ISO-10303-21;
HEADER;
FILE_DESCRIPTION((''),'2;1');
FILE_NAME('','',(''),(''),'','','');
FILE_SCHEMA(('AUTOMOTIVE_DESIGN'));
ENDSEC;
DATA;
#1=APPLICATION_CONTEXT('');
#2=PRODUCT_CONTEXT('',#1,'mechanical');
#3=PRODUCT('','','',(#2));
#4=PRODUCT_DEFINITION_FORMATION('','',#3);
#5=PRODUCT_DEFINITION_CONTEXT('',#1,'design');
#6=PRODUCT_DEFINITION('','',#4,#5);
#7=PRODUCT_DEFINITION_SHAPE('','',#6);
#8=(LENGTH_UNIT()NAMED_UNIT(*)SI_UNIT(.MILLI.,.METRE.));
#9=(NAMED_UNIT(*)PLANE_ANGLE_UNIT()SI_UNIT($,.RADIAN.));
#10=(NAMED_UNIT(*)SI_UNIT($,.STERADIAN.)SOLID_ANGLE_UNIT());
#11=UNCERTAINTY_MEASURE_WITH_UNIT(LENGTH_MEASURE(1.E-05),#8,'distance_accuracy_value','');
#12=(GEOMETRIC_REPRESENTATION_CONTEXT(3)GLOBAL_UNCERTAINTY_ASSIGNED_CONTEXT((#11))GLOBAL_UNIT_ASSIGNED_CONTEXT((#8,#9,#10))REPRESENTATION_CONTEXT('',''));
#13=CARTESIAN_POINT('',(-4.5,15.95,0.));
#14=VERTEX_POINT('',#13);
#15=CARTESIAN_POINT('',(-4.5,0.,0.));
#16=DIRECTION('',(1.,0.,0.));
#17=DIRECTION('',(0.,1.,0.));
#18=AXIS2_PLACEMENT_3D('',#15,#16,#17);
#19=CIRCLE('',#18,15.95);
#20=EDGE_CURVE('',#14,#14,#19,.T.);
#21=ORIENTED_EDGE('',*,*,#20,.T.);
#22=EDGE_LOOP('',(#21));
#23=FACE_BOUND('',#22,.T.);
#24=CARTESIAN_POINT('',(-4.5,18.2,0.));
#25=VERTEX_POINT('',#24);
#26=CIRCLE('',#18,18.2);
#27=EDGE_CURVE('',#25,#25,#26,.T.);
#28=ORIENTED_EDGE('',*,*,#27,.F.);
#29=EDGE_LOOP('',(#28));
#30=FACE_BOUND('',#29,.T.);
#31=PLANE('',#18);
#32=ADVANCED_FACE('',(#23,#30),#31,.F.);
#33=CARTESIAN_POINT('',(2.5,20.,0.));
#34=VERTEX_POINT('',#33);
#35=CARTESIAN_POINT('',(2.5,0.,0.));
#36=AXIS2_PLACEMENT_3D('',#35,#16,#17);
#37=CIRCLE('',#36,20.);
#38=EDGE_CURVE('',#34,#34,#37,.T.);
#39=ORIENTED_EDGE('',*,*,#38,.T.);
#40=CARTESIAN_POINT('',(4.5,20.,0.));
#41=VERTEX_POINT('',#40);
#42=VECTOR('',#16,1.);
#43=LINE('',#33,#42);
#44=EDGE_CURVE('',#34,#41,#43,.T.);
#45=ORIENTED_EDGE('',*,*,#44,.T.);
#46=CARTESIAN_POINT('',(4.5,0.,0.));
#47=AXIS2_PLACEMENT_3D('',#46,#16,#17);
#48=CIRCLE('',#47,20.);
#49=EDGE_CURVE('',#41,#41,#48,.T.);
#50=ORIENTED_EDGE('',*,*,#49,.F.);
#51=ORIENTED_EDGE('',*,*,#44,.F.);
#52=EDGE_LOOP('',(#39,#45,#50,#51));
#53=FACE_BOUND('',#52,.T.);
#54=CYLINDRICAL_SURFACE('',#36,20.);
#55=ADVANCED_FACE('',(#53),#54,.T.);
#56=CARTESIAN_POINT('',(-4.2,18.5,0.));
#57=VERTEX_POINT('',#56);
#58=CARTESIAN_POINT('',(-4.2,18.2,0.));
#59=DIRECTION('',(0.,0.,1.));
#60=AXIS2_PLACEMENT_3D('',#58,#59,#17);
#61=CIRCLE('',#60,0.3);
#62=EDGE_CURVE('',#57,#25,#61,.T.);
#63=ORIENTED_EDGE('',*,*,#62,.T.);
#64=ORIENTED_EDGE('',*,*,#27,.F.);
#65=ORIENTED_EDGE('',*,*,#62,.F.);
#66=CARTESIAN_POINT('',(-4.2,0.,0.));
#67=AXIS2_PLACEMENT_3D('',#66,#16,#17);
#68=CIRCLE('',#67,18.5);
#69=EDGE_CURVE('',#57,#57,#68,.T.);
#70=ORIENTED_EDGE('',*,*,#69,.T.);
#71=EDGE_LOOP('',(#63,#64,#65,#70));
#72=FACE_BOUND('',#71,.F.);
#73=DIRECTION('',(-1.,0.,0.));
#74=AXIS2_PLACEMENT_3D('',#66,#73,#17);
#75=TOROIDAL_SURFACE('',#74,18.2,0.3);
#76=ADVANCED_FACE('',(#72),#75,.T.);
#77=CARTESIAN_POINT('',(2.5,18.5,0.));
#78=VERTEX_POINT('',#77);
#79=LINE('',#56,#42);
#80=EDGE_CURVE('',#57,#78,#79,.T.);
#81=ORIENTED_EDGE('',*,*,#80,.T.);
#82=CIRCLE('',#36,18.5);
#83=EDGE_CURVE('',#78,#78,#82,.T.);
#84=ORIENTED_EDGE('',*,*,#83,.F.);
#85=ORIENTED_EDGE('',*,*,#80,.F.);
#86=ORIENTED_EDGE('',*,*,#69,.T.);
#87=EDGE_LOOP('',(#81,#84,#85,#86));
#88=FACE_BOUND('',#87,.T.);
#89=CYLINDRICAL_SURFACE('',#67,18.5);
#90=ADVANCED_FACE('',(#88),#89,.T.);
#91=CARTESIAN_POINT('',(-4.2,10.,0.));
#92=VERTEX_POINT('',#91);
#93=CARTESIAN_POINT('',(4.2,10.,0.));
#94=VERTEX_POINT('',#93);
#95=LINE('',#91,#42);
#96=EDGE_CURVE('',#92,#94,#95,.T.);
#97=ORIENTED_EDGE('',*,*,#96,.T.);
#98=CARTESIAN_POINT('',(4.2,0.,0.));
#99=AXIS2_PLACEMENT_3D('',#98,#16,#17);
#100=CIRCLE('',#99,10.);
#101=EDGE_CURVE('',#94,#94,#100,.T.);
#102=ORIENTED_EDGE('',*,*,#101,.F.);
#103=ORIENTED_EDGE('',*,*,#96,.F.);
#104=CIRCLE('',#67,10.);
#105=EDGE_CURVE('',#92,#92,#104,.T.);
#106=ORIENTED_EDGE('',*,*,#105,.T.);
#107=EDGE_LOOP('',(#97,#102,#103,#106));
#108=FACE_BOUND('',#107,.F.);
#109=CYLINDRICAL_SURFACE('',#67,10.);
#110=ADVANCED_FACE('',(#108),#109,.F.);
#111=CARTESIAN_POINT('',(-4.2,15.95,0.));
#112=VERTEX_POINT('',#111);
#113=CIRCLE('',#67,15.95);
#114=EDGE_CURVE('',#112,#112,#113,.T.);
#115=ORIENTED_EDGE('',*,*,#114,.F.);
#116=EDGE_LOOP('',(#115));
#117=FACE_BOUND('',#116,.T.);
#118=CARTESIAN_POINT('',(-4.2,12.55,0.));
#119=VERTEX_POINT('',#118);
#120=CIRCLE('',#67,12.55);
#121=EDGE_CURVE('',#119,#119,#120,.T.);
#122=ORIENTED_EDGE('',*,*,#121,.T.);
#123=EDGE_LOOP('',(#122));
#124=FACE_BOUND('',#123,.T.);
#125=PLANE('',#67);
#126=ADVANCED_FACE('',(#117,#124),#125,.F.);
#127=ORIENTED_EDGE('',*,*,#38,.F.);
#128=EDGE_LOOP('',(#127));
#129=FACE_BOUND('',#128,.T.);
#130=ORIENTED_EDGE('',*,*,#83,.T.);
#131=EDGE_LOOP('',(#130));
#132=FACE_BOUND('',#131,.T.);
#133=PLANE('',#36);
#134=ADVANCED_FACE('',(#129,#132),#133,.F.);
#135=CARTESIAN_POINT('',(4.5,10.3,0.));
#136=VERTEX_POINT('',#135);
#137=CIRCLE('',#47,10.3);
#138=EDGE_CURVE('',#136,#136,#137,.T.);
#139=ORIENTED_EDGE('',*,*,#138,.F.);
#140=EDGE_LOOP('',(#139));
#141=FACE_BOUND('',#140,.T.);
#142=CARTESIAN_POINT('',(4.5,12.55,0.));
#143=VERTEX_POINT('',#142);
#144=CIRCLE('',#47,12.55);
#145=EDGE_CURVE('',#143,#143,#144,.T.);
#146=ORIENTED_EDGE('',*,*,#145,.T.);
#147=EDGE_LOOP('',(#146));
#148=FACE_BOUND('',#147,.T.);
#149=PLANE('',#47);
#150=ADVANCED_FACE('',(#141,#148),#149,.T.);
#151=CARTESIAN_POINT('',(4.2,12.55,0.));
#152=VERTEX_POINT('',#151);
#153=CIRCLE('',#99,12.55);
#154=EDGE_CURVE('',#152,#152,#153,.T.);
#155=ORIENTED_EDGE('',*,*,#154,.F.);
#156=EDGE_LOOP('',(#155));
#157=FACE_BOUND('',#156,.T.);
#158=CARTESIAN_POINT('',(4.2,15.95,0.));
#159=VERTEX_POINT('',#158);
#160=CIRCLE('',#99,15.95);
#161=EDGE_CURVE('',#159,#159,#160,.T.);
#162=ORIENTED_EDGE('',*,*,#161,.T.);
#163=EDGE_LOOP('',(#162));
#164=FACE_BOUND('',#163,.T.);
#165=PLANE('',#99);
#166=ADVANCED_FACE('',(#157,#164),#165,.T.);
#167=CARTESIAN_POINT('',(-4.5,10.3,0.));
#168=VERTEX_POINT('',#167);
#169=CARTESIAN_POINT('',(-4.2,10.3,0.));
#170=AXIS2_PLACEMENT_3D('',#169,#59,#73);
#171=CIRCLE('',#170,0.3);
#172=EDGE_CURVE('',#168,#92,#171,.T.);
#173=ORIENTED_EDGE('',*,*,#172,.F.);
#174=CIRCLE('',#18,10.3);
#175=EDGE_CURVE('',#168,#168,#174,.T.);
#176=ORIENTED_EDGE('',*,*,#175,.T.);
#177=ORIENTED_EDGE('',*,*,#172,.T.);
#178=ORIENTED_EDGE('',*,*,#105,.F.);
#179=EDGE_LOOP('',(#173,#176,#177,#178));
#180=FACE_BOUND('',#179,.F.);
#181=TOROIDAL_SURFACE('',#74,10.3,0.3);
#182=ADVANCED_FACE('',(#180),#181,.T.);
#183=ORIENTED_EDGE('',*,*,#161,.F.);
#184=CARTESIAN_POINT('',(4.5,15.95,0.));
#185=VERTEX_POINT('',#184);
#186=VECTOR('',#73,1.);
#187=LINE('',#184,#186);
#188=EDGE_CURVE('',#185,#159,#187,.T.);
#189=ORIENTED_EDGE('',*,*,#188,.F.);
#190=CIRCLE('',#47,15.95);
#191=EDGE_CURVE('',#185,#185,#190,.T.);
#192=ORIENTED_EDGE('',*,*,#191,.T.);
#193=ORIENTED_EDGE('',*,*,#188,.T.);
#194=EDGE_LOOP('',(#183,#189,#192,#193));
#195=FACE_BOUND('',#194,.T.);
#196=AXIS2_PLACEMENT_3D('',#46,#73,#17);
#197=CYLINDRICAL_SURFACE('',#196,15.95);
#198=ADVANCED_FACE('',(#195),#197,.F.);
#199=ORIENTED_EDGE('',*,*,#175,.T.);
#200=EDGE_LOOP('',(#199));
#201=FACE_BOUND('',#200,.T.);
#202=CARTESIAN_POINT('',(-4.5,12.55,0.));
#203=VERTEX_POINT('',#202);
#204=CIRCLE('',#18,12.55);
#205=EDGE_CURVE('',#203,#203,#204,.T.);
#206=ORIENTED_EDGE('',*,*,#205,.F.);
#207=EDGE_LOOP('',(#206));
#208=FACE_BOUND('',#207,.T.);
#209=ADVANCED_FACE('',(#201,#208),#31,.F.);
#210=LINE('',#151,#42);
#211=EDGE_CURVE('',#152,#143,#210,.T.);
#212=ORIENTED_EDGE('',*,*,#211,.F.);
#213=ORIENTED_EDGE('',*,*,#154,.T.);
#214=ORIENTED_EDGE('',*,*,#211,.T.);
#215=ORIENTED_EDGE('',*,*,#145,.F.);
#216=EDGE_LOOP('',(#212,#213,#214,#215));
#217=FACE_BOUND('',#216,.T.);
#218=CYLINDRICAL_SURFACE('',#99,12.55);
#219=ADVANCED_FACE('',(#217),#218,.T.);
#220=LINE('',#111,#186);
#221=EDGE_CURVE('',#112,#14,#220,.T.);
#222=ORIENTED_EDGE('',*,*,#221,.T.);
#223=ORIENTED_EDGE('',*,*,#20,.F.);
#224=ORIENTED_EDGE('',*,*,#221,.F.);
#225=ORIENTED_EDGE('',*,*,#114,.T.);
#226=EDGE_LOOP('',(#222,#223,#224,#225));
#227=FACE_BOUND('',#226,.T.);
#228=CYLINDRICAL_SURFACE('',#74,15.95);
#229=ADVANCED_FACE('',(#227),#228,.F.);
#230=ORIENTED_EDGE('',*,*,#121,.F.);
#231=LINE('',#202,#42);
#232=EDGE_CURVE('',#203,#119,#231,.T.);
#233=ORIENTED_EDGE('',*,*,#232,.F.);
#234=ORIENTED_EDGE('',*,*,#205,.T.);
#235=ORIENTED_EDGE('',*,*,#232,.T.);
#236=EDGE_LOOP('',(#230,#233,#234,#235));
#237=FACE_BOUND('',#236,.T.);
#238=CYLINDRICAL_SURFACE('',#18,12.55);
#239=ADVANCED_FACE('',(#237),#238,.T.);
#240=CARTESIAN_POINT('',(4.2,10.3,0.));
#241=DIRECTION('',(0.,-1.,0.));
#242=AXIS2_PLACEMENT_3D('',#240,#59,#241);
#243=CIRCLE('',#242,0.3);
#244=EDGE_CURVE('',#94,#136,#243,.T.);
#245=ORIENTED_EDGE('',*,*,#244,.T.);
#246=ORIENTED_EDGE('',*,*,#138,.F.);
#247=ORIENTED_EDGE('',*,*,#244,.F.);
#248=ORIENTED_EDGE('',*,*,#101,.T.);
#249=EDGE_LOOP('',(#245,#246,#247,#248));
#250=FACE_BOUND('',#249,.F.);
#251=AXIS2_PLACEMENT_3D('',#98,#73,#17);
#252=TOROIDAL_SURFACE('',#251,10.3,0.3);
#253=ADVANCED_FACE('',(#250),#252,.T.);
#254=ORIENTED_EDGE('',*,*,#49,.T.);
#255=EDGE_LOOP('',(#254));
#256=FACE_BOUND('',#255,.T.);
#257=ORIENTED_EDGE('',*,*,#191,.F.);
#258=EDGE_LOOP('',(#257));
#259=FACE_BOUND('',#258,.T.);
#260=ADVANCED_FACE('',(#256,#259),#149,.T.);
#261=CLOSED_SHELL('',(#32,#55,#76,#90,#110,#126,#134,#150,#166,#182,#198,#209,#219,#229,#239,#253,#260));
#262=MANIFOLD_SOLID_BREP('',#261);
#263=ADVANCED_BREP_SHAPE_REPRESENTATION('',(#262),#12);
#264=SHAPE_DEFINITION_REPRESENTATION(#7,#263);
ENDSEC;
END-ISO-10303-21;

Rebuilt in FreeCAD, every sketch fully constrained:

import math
import FreeCAD as App
import Part
import Sketcher
from FreeCAD import Vector
Q = App.Units.Quantity

doc = App.newDocument("Part")
body = doc.addObject("PartDesign::Body", "Body")

sketch1 = body.newObject("Sketcher::SketchObject", "Sketch")
sketch1.AttachmentSupport = (doc.getObject("XY_Plane"), [""])
sketch1.MapMode = "FlatFace"
sketch1.addGeometry([
    Part.LineSegment(Vector(-4.5, 0, 0), Vector(4.5, 0, 0)),
    Part.LineSegment(Vector(4.5, 0, 0), Vector(4.5, 12.55, 0)),
    Part.LineSegment(Vector(4.5, 12.55, 0), Vector(4.2, 12.55, 0)),
    Part.LineSegment(Vector(4.2, 12.55, 0), Vector(4.2, 15.95, 0)),
    Part.LineSegment(Vector(4.2, 15.95, 0), Vector(4.5, 15.95, 0)),
    Part.LineSegment(Vector(4.5, 15.95, 0), Vector(4.5, 20, 0)),
    Part.LineSegment(Vector(4.5, 20, 0), Vector(2.5, 20, 0)),
    Part.LineSegment(Vector(2.5, 20, 0), Vector(2.5, 18.5, 0)),
    Part.LineSegment(Vector(2.5, 18.5, 0), Vector(-4.2, 18.5, 0)),
    Part.ArcOfCircle(Part.Circle(Vector(-4.2, 18.2, 0), Vector(0, 0, 1), 0.3), math.radians(90), math.radians(180)),
    Part.LineSegment(Vector(-4.5, 18.2, 0), Vector(-4.5, 15.95, 0)),
    Part.LineSegment(Vector(-4.5, 15.95, 0), Vector(-4.2, 15.95, 0)),
    Part.LineSegment(Vector(-4.2, 15.95, 0), Vector(-4.2, 12.55, 0)),
    Part.LineSegment(Vector(-4.2, 12.55, 0), Vector(-4.5, 12.55, 0)),
    Part.LineSegment(Vector(-4.5, 12.55, 0), Vector(-4.5, 0, 0)),
], False)
sketch1.addConstraint([
    Sketcher.Constraint("Coincident", 0, 2, 1, 1),
    Sketcher.Constraint("Coincident", 1, 2, 2, 1),
    Sketcher.Constraint("Coincident", 2, 2, 3, 1),
    Sketcher.Constraint("Coincident", 3, 2, 4, 1),
    Sketcher.Constraint("Coincident", 4, 2, 5, 1),
    Sketcher.Constraint("Coincident", 5, 2, 6, 1),
    Sketcher.Constraint("Coincident", 6, 2, 7, 1),
    Sketcher.Constraint("Coincident", 7, 2, 8, 1),
    Sketcher.Constraint("Tangent", 8, 2, 9, 1),
    Sketcher.Constraint("Tangent", 9, 2, 10, 1),
    Sketcher.Constraint("Coincident", 10, 2, 11, 1),
    Sketcher.Constraint("Coincident", 11, 2, 12, 1),
    Sketcher.Constraint("Coincident", 12, 2, 13, 1),
    Sketcher.Constraint("Coincident", 13, 2, 14, 1),
    Sketcher.Constraint("Coincident", 14, 2, 0, 1),
    Sketcher.Constraint("Horizontal", 0),
    Sketcher.Constraint("Vertical", 1),
    Sketcher.Constraint("Horizontal", 2),
    Sketcher.Constraint("Vertical", 3),
    Sketcher.Constraint("Horizontal", 4),
    Sketcher.Constraint("Vertical", 5),
    Sketcher.Constraint("Horizontal", 6),
    Sketcher.Constraint("Vertical", 7),
    Sketcher.Constraint("Horizontal", 8),
    Sketcher.Constraint("Vertical", 10),
    Sketcher.Constraint("Horizontal", 11),
    Sketcher.Constraint("Vertical", 12),
    Sketcher.Constraint("Horizontal", 13),
    Sketcher.Constraint("Vertical", 14),
    Sketcher.Constraint("Symmetric", 0, 2, 14, 2, -1, 1),
    Sketcher.Constraint("Symmetric", 4, 2, 10, 2, -2),
    Sketcher.Constraint("Symmetric", 2, 2, 12, 2, -2),
    Sketcher.Constraint("Vertical", 1, 2, 4, 2),
    Sketcher.Constraint("Vertical", 8, 2, 11, 2),
    Sketcher.Constraint("Radius", 9, Q("0.3 mm")),
    Sketcher.Constraint("DistanceX", 0, 1, 0, 2, Q("9 mm")),
    Sketcher.Constraint("DistanceX", 6, 2, 6, 1, Q("2 mm")),
    Sketcher.Constraint("DistanceY", 3, 1, 3, 2, Q("3.4 mm")),
    Sketcher.Constraint("DistanceY", 7, 2, 7, 1, Q("1.5 mm")),
    Sketcher.Constraint("DistanceY", -1, 1, 5, 2, Q("20 mm")),
    Sketcher.Constraint("DistanceY", 1, 1, 1, 2, Q("12.55 mm")),
])
revolution = body.newObject("PartDesign::Revolution", "Revolution")
revolution.Profile = sketch1
revolution.ReferenceAxis = (sketch1, ["H_Axis"])
revolution.Angle = 360

sketch2 = body.newObject("Sketcher::SketchObject", "Sketch001")
sketch2.AttachmentSupport = (doc.getObject("XY_Plane"), [""])
sketch2.MapMode = "FlatFace"
sketch2.addGeometry([
    Part.LineSegment(Vector(-4.5, 0, 0), Vector(4.5, 0, 0)),
    Part.LineSegment(Vector(4.5, 0, 0), Vector(4.5, 10.3, 0)),
    Part.ArcOfCircle(Part.Circle(Vector(4.2, 10.3, 0), Vector(0, 0, 1), 0.3), math.radians(-90), math.radians(0)),
    Part.LineSegment(Vector(4.2, 10, 0), Vector(-4.2, 10, 0)),
    Part.ArcOfCircle(Part.Circle(Vector(-4.2, 10.3, 0), Vector(0, 0, 1), 0.3), math.radians(180), math.radians(270)),
    Part.LineSegment(Vector(-4.5, 10.3, 0), Vector(-4.5, 0, 0)),
], False)
sketch2.addConstraint([
    Sketcher.Constraint("Coincident", 0, 2, 1, 1),
    Sketcher.Constraint("Tangent", 1, 2, 2, 2),
    Sketcher.Constraint("Tangent", 2, 1, 3, 1),
    Sketcher.Constraint("Tangent", 3, 2, 4, 2),
    Sketcher.Constraint("Tangent", 4, 1, 5, 1),
    Sketcher.Constraint("Coincident", 5, 2, 0, 1),
    Sketcher.Constraint("Horizontal", 0),
    Sketcher.Constraint("Vertical", 1),
    Sketcher.Constraint("Horizontal", 3),
    Sketcher.Constraint("Vertical", 5),
    Sketcher.Constraint("Equal", 2, 4),
    Sketcher.Constraint("Symmetric", 0, 2, 5, 2, -1, 1),
    Sketcher.Constraint("Radius", 2, Q("0.3 mm")),
    Sketcher.Constraint("DistanceX", 0, 1, 0, 2, Q("9 mm")),
    Sketcher.Constraint("DistanceY", 1, 1, 1, 2, Q("10.3 mm")),
])
groove = body.newObject("PartDesign::Groove", "Groove")
groove.Profile = sketch2
groove.ReferenceAxis = (sketch2, ["H_Axis"])
groove.Angle = 360

doc.recompute()
